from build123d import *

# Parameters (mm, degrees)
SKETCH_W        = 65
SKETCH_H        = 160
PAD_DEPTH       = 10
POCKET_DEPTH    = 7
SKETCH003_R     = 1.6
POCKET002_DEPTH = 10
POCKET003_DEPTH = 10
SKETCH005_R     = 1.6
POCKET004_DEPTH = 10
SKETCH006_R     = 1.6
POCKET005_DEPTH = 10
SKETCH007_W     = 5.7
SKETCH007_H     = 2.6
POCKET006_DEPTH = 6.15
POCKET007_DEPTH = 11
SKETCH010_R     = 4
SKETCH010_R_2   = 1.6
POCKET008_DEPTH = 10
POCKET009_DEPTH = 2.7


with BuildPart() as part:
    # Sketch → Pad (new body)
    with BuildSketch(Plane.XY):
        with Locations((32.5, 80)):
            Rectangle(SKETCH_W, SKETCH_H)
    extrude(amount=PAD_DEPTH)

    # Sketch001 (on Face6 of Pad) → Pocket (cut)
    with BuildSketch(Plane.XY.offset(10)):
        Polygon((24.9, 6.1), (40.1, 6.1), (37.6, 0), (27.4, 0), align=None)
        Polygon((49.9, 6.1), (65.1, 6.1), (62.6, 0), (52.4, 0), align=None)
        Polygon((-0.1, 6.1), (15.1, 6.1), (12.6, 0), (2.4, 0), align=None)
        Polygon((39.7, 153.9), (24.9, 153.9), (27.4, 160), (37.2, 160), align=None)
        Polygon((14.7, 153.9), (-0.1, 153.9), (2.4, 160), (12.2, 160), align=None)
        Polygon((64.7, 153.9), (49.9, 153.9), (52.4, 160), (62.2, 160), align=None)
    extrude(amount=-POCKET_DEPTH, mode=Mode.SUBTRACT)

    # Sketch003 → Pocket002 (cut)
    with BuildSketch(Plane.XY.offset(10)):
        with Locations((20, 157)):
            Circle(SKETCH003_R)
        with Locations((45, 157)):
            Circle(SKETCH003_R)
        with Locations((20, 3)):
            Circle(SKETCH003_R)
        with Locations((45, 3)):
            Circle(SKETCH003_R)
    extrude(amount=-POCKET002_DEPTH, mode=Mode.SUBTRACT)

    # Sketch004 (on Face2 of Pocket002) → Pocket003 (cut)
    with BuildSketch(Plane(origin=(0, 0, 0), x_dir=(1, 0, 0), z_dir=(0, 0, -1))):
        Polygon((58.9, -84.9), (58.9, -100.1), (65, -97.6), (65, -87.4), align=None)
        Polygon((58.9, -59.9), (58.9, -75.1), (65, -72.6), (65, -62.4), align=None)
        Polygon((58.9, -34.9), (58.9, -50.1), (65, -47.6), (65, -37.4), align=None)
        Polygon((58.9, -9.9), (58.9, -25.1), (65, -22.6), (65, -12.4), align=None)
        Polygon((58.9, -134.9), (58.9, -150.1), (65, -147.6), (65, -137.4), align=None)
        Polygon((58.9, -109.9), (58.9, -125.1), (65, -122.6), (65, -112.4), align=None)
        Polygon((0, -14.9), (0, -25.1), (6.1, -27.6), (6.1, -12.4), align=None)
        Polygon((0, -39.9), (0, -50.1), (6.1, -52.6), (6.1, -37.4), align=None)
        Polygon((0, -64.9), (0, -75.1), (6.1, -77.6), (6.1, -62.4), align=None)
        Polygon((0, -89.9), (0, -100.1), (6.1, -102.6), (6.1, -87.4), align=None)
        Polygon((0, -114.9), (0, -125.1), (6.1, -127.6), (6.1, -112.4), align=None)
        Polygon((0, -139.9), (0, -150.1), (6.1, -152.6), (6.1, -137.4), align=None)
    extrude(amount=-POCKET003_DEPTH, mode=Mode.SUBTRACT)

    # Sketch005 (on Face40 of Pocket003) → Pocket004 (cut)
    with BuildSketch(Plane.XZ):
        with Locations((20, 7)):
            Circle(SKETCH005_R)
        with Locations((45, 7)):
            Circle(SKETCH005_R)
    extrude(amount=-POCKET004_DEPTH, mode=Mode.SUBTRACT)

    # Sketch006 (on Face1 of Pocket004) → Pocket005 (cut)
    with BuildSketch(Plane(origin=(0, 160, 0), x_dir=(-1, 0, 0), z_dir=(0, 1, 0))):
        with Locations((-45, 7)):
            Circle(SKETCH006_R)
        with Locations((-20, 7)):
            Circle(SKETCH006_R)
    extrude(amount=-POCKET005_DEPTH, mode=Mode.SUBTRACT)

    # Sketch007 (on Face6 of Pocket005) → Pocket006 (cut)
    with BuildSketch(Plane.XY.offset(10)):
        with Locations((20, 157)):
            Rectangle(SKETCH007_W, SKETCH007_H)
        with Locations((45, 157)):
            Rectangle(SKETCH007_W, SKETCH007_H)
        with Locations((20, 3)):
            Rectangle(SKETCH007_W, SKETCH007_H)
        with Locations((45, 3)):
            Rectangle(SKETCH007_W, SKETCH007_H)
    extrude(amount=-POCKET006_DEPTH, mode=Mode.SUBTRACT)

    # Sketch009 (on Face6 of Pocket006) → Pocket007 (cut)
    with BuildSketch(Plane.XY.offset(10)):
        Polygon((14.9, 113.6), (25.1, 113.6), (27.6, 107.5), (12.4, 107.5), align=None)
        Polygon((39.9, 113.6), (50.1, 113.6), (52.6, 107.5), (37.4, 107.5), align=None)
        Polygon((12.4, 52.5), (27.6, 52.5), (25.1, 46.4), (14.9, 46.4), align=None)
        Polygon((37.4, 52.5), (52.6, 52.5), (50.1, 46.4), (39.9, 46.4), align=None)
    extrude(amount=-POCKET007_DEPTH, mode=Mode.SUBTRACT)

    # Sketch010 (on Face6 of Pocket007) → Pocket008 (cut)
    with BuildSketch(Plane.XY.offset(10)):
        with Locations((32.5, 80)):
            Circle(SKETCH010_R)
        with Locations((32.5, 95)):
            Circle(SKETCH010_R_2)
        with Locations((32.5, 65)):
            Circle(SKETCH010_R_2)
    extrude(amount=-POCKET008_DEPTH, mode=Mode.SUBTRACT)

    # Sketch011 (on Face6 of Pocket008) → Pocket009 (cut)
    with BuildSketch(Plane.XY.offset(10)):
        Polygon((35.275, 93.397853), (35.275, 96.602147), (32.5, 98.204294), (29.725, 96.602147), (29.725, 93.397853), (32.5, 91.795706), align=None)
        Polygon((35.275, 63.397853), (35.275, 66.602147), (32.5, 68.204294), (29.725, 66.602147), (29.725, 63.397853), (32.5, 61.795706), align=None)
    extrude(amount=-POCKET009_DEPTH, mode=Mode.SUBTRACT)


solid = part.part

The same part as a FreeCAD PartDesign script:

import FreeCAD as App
import Part
import Sketcher
from FreeCAD import Vector
Q = App.Units.Quantity


def add_polygon(sketch, points):
    """Adds a closed chain of lines whose ends are joined by coincident constraints."""
    first, n = sketch.GeometryCount, len(points)
    for a, b in zip(points, points[1:] + points[:1]):
        sketch.addGeometry(Part.LineSegment(App.Vector(*a, 0), App.Vector(*b, 0)), False)
    for i in range(n):
        sketch.addConstraint(Sketcher.Constraint("Coincident", first + i, 2, first + (i + 1) % n, 1))

doc = App.newDocument("Part")
params = doc.addObject("Spreadsheet::Sheet", "Params")
for row, (alias, value) in enumerate([
    ("sketch1_width", "65 mm"),
    ("sketch1_height", "160 mm"),
    ("pad1_length", "10 mm"),
    ("sketch2_width", "15.2 mm"),
    ("sketch2_width2", "10.2 mm"),
    ("sketch2_width3", "14.8 mm"),
    ("pocket1_length", "7 mm"),
    ("sketch3_diameter", "3.2 mm"),
    ("pocket2_length", "10 mm"),
    ("sketch4_height", "15.2 mm"),
    ("sketch4_height2", "10.2 mm"),
    ("pocket3_length", "10 mm"),
    ("sketch5_diameter", "3.2 mm"),
    ("pocket4_length", "10 mm"),
    ("sketch6_diameter", "3.2 mm"),
    ("pocket5_length", "10 mm"),
    ("sketch7_width", "5.7 mm"),
    ("sketch7_height", "2.6 mm"),
    ("pocket6_length", "6.15 mm"),
    ("sketch8_width", "10.2 mm"),
    ("sketch8_width2", "15.2 mm"),
    ("pocket7_length", "11 mm"),
    ("sketch9_diameter", "8 mm"),
    ("sketch9_diameter2", "3.2 mm"),
    ("pocket8_length", "10 mm"),
    ("pocket9_length", "2.7 mm"),
], start=1):
    params.set(f"A{row}", alias)
    params.set(f"B{row}", "=" + value)
    params.setAlias(f"B{row}", alias)

body = doc.addObject("PartDesign::Body", "Body")

# Sketch on XY plane
sketch1 = body.newObject("Sketcher::SketchObject", "Sketch")
sketch1.AttachmentSupport = (doc.getObject("XY_Plane"), [""])
sketch1.MapMode = "FlatFace"
add_polygon(sketch1, [(0, 160), (0, 0), (65, 0), (65, 160)])  # lines 0-3
sketch1.addConstraint([
    Sketcher.Constraint("Vertical", 0),
    Sketcher.Constraint("Horizontal", 1),
    Sketcher.Constraint("Vertical", 2),
    Sketcher.Constraint("Horizontal", 3),
    Sketcher.Constraint("Coincident", 0, 2, -1, 1),
    Sketcher.Constraint("DistanceX", 1, 1, 1, 2, 65.0),
    Sketcher.Constraint("DistanceY", 0, 2, 0, 1, 160.0),
])
sketch1.setExpression("Constraints[9]", "Params.sketch1_width")
sketch1.setExpression("Constraints[10]", "Params.sketch1_height")
pad1 = body.newObject("PartDesign::Pad", "Pad")
pad1.Profile = sketch1
pad1.setExpression("Length", "Params.pad1_length")

# Sketch on XY plane
sketch2 = body.newObject("Sketcher::SketchObject", "Sketch001")
sketch2.AttachmentSupport = (doc.getObject("XY_Plane"), [""])
sketch2.MapMode = "FlatFace"
sketch2.AttachmentOffset = App.Placement(Vector(0, 0, 10), App.Rotation())
add_polygon(sketch2, [(40.1, 6.1), (24.9, 6.1), (27.4, 0), (37.6, 0)])  # lines 0-3
add_polygon(sketch2, [(65.1, 6.1), (49.9, 6.1), (52.4, 0), (62.6, 0)])  # lines 4-7
add_polygon(sketch2, [(15.1, 6.1), (-0.1, 6.1), (2.4, 0), (12.6, 0)])  # lines 8-11
add_polygon(sketch2, [(24.9, 153.9), (39.7, 153.9), (37.2, 160), (27.4, 160)])  # lines 12-15
add_polygon(sketch2, [(-0.1, 153.9), (14.7, 153.9), (12.2, 160), (2.4, 160)])  # lines 16-19
add_polygon(sketch2, [(49.9, 153.9), (64.7, 153.9), (62.2, 160), (52.4, 160)])  # lines 20-23
sketch2.addConstraint([
    Sketcher.Constraint("Horizontal", 0),
    Sketcher.Constraint("Horizontal", 2),
    Sketcher.Constraint("Horizontal", 4),
    Sketcher.Constraint("Horizontal", 6),
    Sketcher.Constraint("Horizontal", 8),
    Sketcher.Constraint("Horizontal", 10),
    Sketcher.Constraint("Horizontal", 12),
    Sketcher.Constraint("Horizontal", 14),
    Sketcher.Constraint("Horizontal", 16),
    Sketcher.Constraint("Horizontal", 18),
    Sketcher.Constraint("Horizontal", 20),
    Sketcher.Constraint("Horizontal", 22),
    Sketcher.Constraint("PointOnObject", 1, 2, -1),
    Sketcher.Constraint("PointOnObject", 5, 2, -1),
    Sketcher.Constraint("PointOnObject", 9, 2, -1),
    Sketcher.Constraint("Parallel", 1, 5),
    Sketcher.Constraint("Parallel", 3, 7),
    Sketcher.Constraint("Parallel", 5, 9),
    Sketcher.Constraint("Parallel", 7, 11),
    Sketcher.Constraint("Parallel", 9, 13),
    Sketcher.Constraint("Parallel", 11, 15),
    Sketcher.Constraint("Parallel", 13, 17),
    Sketcher.Constraint("Parallel", 15, 19),
    Sketcher.Constraint("Parallel", 17, 21),
    Sketcher.Constraint("Parallel", 19, 23),
    Sketcher.Constraint("Horizontal", 3, 2, 4, 2),
    Sketcher.Constraint("Horizontal", 7, 2, 8, 2),
    Sketcher.Constraint("Horizontal", 15, 2, 16, 2),
    Sketcher.Constraint("Horizontal", 14, 2, 17, 2),
    Sketcher.Constraint("Horizontal", 19, 2, 20, 2),
    Sketcher.Constraint("Horizontal", 18, 2, 21, 2),
    Sketcher.Constraint("Vertical", 1, 2, 14, 2),
    Sketcher.Constraint("Vertical", 0, 2, 15, 2),
    Sketcher.Constraint("Vertical", 9, 2, 18, 2),
    Sketcher.Constraint("Vertical", 5, 2, 22, 2),
    Sketcher.Constraint("Equal", 0, 4),
    Sketcher.Constraint("Equal", 4, 8),
    Sketcher.Constraint("Equal", 12, 16),
    Sketcher.Constraint("Equal", 16, 20),
    Sketcher.Constraint("Equal", 1, 3),
    Sketcher.Constraint("DistanceX", 0, 2, 0, 1, 15.2),
    Sketcher.Constraint("DistanceX", 2, 1, 2, 2, 10.2),
    Sketcher.Constraint("DistanceX", 12, 1, 12, 2, 14.8),
    Sketcher.Constraint("DistanceY", -1, 1, 13, 2, 160.0),
    Sketcher.Constraint("DistanceX", 0, 2, 4, 2, 25.0),
    Sketcher.Constraint("DistanceX", 8, 2, 0, 2, 25.0),
    Sketcher.Constraint("DistanceX", -1, 1, 0, 2, 24.9),
    Sketcher.Constraint("DistanceY", -1, 1, 0, 2, 6.1),
])
sketch2.setExpression("Constraints[64]", "Params.sketch2_width")
sketch2.setExpression("Constraints[65]", "Params.sketch2_width2")
sketch2.setExpression("Constraints[66]", "Params.sketch2_width3")
pocket1 = body.newObject("PartDesign::Pocket", "Pocket")
pocket1.Profile = sketch2
pocket1.setExpression("Length", "Params.pocket1_length")

# Sketch on XY plane
sketch3 = body.newObject("Sketcher::SketchObject", "Sketch002")
sketch3.AttachmentSupport = (doc.getObject("XY_Plane"), [""])
sketch3.MapMode = "FlatFace"
sketch3.AttachmentOffset = App.Placement(Vector(0, 0, 10), App.Rotation())
sketch3.addGeometry([
    Part.Circle(Vector(20, 157, 0), Vector(0, 0, 1), 1.6),
    Part.Circle(Vector(45, 157, 0), Vector(0, 0, 1), 1.6),
    Part.Circle(Vector(20, 3, 0), Vector(0, 0, 1), 1.6),
    Part.Circle(Vector(45, 3, 0), Vector(0, 0, 1), 1.6),
], False)
sketch3.addConstraint([
    Sketcher.Constraint("Equal", 0, 1),
    Sketcher.Constraint("Equal", 1, 2),
    Sketcher.Constraint("Equal", 2, 3),
    Sketcher.Constraint("Horizontal", 0, 3, 1, 3),
    Sketcher.Constraint("Horizontal", 2, 3, 3, 3),
    Sketcher.Constraint("Vertical", 0, 3, 2, 3),
    Sketcher.Constraint("Vertical", 1, 3, 3, 3),
    Sketcher.Constraint("Diameter", 0, 3.2),
    Sketcher.Constraint("DistanceX", -1, 1, 0, 3, 20.0),
    Sketcher.Constraint("DistanceY", -1, 1, 0, 3, 157.0),
    Sketcher.Constraint("DistanceX", -1, 1, 1, 3, 45.0),
    Sketcher.Constraint("DistanceY", -1, 1, 2, 3, 3.0),
])
sketch3.setExpression("Constraints[7]", "Params.sketch3_diameter")
pocket2 = body.newObject("PartDesign::Pocket", "Pocket001")
pocket2.Profile = sketch3
pocket2.setExpression("Length", "Params.pocket2_length")

# Sketch on XY plane
sketch4 = body.newObject("Sketcher::SketchObject", "Sketch003")
sketch4.AttachmentSupport = (doc.getObject("XY_Plane"), [""])
sketch4.MapMode = "FlatFace"
add_polygon(sketch4, [(58.9, 84.9), (58.9, 100.1), (65, 97.6), (65, 87.4)])  # lines 0-3
add_polygon(sketch4, [(58.9, 59.9), (58.9, 75.1), (65, 72.6), (65, 62.4)])  # lines 4-7
add_polygon(sketch4, [(58.9, 34.9), (58.9, 50.1), (65, 47.6), (65, 37.4)])  # lines 8-11
add_polygon(sketch4, [(58.9, 9.9), (58.9, 25.1), (65, 22.6), (65, 12.4)])  # lines 12-15
add_polygon(sketch4, [(58.9, 134.9), (58.9, 150.1), (65, 147.6), (65, 137.4)])  # lines 16-19
add_polygon(sketch4, [(58.9, 109.9), (58.9, 125.1), (65, 122.6), (65, 112.4)])  # lines 20-23
add_polygon(sketch4, [(0, 14.9), (0, 25.1), (6.1, 27.6), (6.1, 12.4)])  # lines 24-27
add_polygon(sketch4, [(0, 39.9), (0, 50.1), (6.1, 52.6), (6.1, 37.4)])  # lines 28-31
add_polygon(sketch4, [(0, 64.9), (0, 75.1), (6.1, 77.6), (6.1, 62.4)])  # lines 32-35
add_polygon(sketch4, [(0, 89.9), (0, 100.1), (6.1, 102.6), (6.1, 87.4)])  # lines 36-39
add_polygon(sketch4, [(0, 114.9), (0, 125.1), (6.1, 127.6), (6.1, 112.4)])  # lines 40-43
add_polygon(sketch4, [(0, 139.9), (0, 150.1), (6.1, 152.6), (6.1, 137.4)])  # lines 44-47
sketch4.addConstraint([
    Sketcher.Constraint("Vertical", 0),
    Sketcher.Constraint("Vertical", 2),
    Sketcher.Constraint("Vertical", 4),
    Sketcher.Constraint("Vertical", 6),
    Sketcher.Constraint("Vertical", 8),
    Sketcher.Constraint("Vertical", 10),
    Sketcher.Constraint("Vertical", 12),
    Sketcher.Constraint("Vertical", 14),
    Sketcher.Constraint("Vertical", 16),
    Sketcher.Constraint("Vertical", 18),
    Sketcher.Constraint("Vertical", 20),
    Sketcher.Constraint("Vertical", 22),
    Sketcher.Constraint("Vertical", 24),
    Sketcher.Constraint("Vertical", 26),
    Sketcher.Constraint("Vertical", 28),
    Sketcher.Constraint("Vertical", 30),
    Sketcher.Constraint("Vertical", 32),
    Sketcher.Constraint("Vertical", 34),
    Sketcher.Constraint("Vertical", 36),
    Sketcher.Constraint("Vertical", 38),
    Sketcher.Constraint("Vertical", 40),
    Sketcher.Constraint("Vertical", 42),
    Sketcher.Constraint("Vertical", 44),
    Sketcher.Constraint("Vertical", 46),
    Sketcher.Constraint("PointOnObject", 24, 2, -2),
    Sketcher.Constraint("PointOnObject", 28, 2, -2),
    Sketcher.Constraint("PointOnObject", 32, 2, -2),
    Sketcher.Constraint("PointOnObject", 36, 2, -2),
    Sketcher.Constraint("PointOnObject", 40, 2, -2),
    Sketcher.Constraint("PointOnObject", 44, 2, -2),
    Sketcher.Constraint("Parallel", 1, 5),
    Sketcher.Constraint("Parallel", 3, 7),
    Sketcher.Constraint("Parallel", 5, 9),
    Sketcher.Constraint("Parallel", 7, 11),
    Sketcher.Constraint("Parallel", 9, 13),
    Sketcher.Constraint("Parallel", 11, 15),
    Sketcher.Constraint("Parallel", 13, 17),
    Sketcher.Constraint("Parallel", 15, 19),
    Sketcher.Constraint("Parallel", 17, 21),
    Sketcher.Constraint("Parallel", 19, 23),
    Sketcher.Constraint("Parallel", 23, 25),
    Sketcher.Constraint("Parallel", 21, 27),
    Sketcher.Constraint("Parallel", 25, 29),
    Sketcher.Constraint("Parallel", 27, 31),
    Sketcher.Constraint("Parallel", 29, 33),
    Sketcher.Constraint("Parallel", 31, 35),
    Sketcher.Constraint("Parallel", 33, 37),
    Sketcher.Constraint("Parallel", 35, 39),
    Sketcher.Constraint("Parallel", 37, 41),
    Sketcher.Constraint("Parallel", 39, 43),
    Sketcher.Constraint("Parallel", 41, 45),
    Sketcher.Constraint("Parallel", 43, 47),
    Sketcher.Constraint("Horizontal", 12, 2, 24, 2),
    Sketcher.Constraint("Horizontal", 14, 2, 26, 2),
    Sketcher.Constraint("Horizontal", 8, 2, 28, 2),
    Sketcher.Constraint("Horizontal", 10, 2, 30, 2),
    Sketcher.Constraint("Horizontal", 4, 2, 32, 2),
    Sketcher.Constraint("Horizontal", 6, 2, 34, 2),
    Sketcher.Constraint("Horizontal", 0, 2, 36, 2),
    Sketcher.Constraint("Horizontal", 2, 2, 38, 2),
    Sketcher.Constraint("Horizontal", 20, 2, 40, 2),
    Sketcher.Constraint("Horizontal", 22, 2, 42, 2),
    Sketcher.Constraint("Horizontal", 16, 2, 44, 2),
    Sketcher.Constraint("Horizontal", 18, 2, 46, 2),
    Sketcher.Constraint("Vertical", 3, 2, 4, 2),
    Sketcher.Constraint("Vertical", 2, 2, 5, 2),
    Sketcher.Constraint("Vertical", 7, 2, 8, 2),
    Sketcher.Constraint("Vertical", 6, 2, 9, 2),
    Sketcher.Constraint("Vertical", 11, 2, 12, 2),
    Sketcher.Constraint("Vertical", 10, 2, 13, 2),
    Sketcher.Constraint("Vertical", 15, 2, 16, 2),
    Sketcher.Constraint("Vertical", 14, 2, 17, 2),
    Sketcher.Constraint("Vertical", 19, 2, 20, 2),
    Sketcher.Constraint("Vertical", 18, 2, 21, 2),
    Sketcher.Constraint("Vertical", 26, 2, 29, 2),
    Sketcher.Constraint("Vertical", 30, 2, 33, 2),
    Sketcher.Constraint("Vertical", 34, 2, 37, 2),
    Sketcher.Constraint("Vertical", 38, 2, 41, 2),
    Sketcher.Constraint("Vertical", 42, 2, 45, 2),
    Sketcher.Constraint("Equal", 0, 4),
    Sketcher.Constraint("Equal", 4, 8),
    Sketcher.Constraint("Equal", 8, 12),
    Sketcher.Constraint("Equal", 12, 16),
    Sketcher.Constraint("Equal", 16, 20),
    Sketcher.Constraint("Equal", 22, 24),
    Sketcher.Constraint("Equal", 1, 3),
    Sketcher.Constraint("DistanceY", 0, 1, 0, 2, 15.2),
    Sketcher.Constraint("DistanceY", 2, 2, 2, 1, 10.2),
    Sketcher.Constraint("DistanceX", -1, 1, 1, 2, 65.0),
    Sketcher.Constraint("DistanceY", 4, 2, 0, 2, 25.0),
    Sketcher.Constraint("DistanceY", 8, 2, 4, 2, 25.0),
    Sketcher.Constraint("DistanceY", 12, 2, 8, 2, 25.0),
    Sketcher.Constraint("DistanceY", 0, 2, 16, 2, 50.0),
    Sketcher.Constraint("DistanceY", 0, 2, 20, 2, 25.0),
    Sketcher.Constraint("DistanceX", -1, 1, 0, 2, 58.9),
    Sketcher.Constraint("DistanceY", -1, 1, 0, 2, 100.1),
])
sketch4.setExpression("Constraints[134]", "Params.sketch4_height")
sketch4.setExpression("Constraints[135]", "Params.sketch4_height2")
pocket3 = body.newObject("PartDesign::Pocket", "Pocket002")
pocket3.Profile = sketch4
pocket3.setExpression("Length", "Params.pocket3_length")
pocket3.Reversed = True

# Sketch on XZ plane
sketch5 = body.newObject("Sketcher::SketchObject", "Sketch004")
sketch5.AttachmentSupport = (doc.getObject("XZ_Plane"), [""])
sketch5.MapMode = "FlatFace"
sketch5.addGeometry([
    Part.Circle(Vector(20, 7, 0), Vector(0, 0, 1), 1.6),
    Part.Circle(Vector(45, 7, 0), Vector(0, 0, 1), 1.6),
], False)
sketch5.addConstraint([
    Sketcher.Constraint("Equal", 0, 1),
    Sketcher.Constraint("Horizontal", 0, 3, 1, 3),
    Sketcher.Constraint("Diameter", 0, 3.2),
    Sketcher.Constraint("DistanceX", -1, 1, 0, 3, 20.0),
    Sketcher.Constraint("DistanceY", -1, 1, 0, 3, 7.0),
    Sketcher.Constraint("DistanceX", -1, 1, 1, 3, 45.0),
])
sketch5.setExpression("Constraints[2]", "Params.sketch5_diameter")
pocket4 = body.newObject("PartDesign::Pocket", "Pocket003")
pocket4.Profile = sketch5
pocket4.setExpression("Length", "Params.pocket4_length")

# Sketch on XZ plane
sketch6 = body.newObject("Sketcher::SketchObject", "Sketch005")
sketch6.AttachmentSupport = (doc.getObject("XZ_Plane"), [""])
sketch6.MapMode = "FlatFace"
sketch6.AttachmentOffset = App.Placement(Vector(0, 0, -160), App.Rotation())
sketch6.addGeometry([
    Part.Circle(Vector(45, 7, 0), Vector(0, 0, 1), 1.6),
    Part.Circle(Vector(20, 7, 0), Vector(0, 0, 1), 1.6),
], False)
sketch6.addConstraint([
    Sketcher.Constraint("Equal", 0, 1),
    Sketcher.Constraint("Horizontal", 0, 3, 1, 3),
    Sketcher.Constraint("Diameter", 0, 3.2),
    Sketcher.Constraint("DistanceX", -1, 1, 0, 3, 45.0),
    Sketcher.Constraint("DistanceY", -1, 1, 0, 3, 7.0),
    Sketcher.Constraint("DistanceX", -1, 1, 1, 3, 20.0),
])
sketch6.setExpression("Constraints[2]", "Params.sketch6_diameter")
pocket5 = body.newObject("PartDesign::Pocket", "Pocket004")
pocket5.Profile = sketch6
pocket5.setExpression("Length", "Params.pocket5_length")
pocket5.Reversed = True

# Sketch on XY plane
sketch7 = body.newObject("Sketcher::SketchObject", "Sketch006")
sketch7.AttachmentSupport = (doc.getObject("XY_Plane"), [""])
sketch7.MapMode = "FlatFace"
sketch7.AttachmentOffset = App.Placement(Vector(0, 0, 10), App.Rotation())
add_polygon(sketch7, [(17.15, 158.3), (17.15, 155.7), (22.85, 155.7), (22.85, 158.3)])  # lines 0-3
add_polygon(sketch7, [(42.15, 158.3), (42.15, 155.7), (47.85, 155.7), (47.85, 158.3)])  # lines 4-7
add_polygon(sketch7, [(17.15, 4.3), (17.15, 1.7), (22.85, 1.7), (22.85, 4.3)])  # lines 8-11
add_polygon(sketch7, [(42.15, 4.3), (42.15, 1.7), (47.85, 1.7), (47.85, 4.3)])  # lines 12-15
sketch7.addConstraint([
    Sketcher.Constraint("Vertical", 0),
    Sketcher.Constraint("Horizontal", 1),
    Sketcher.Constraint("Vertical", 2),
    Sketcher.Constraint("Horizontal", 3),
    Sketcher.Constraint("Vertical", 4),
    Sketcher.Constraint("Horizontal", 5),
    Sketcher.Constraint("Vertical", 6),
    Sketcher.Constraint("Horizontal", 7),
    Sketcher.Constraint("Vertical", 8),
    Sketcher.Constraint("Horizontal", 9),
    Sketcher.Constraint("Vertical", 10),
    Sketcher.Constraint("Horizontal", 11),
    Sketcher.Constraint("Vertical", 12),
    Sketcher.Constraint("Horizontal", 13),
    Sketcher.Constraint("Vertical", 14),
    Sketcher.Constraint("Horizontal", 15),
    Sketcher.Constraint("Horizontal", 1, 2, 4, 2),
    Sketcher.Constraint("Horizontal", 3, 2, 6, 2),
    Sketcher.Constraint("Horizontal", 9, 2, 12, 2),
    Sketcher.Constraint("Horizontal", 11, 2, 14, 2),
    Sketcher.Constraint("Vertical", 3, 2, 8, 2),
    Sketcher.Constraint("Vertical", 2, 2, 9, 2),
    Sketcher.Constraint("Vertical", 7, 2, 12, 2),
    Sketcher.Constraint("Vertical", 6, 2, 13, 2),
    Sketcher.Constraint("Equal", 3, 5),
    Sketcher.Constraint("Equal", 6, 8),
    Sketcher.Constraint("DistanceX", 1, 1, 1, 2, 5.7),
    Sketcher.Constraint("DistanceY", 0, 2, 0, 1, 2.6),
    Sketcher.Constraint("DistanceX", 0, 2, 4, 2, 25.0),
    Sketcher.Constraint("DistanceY", 8, 2, 0, 2, 154.0),
    Sketcher.Constraint("DistanceY", -1, 1, 0, 2, 155.7),
    Sketcher.Constraint("DistanceX", -1, 1, 0, 2, 17.15),
])
sketch7.setExpression("Constraints[42]", "Params.sketch7_width")
sketch7.setExpression("Constraints[43]", "Params.sketch7_height")
pocket6 = body.newObject("PartDesign::Pocket", "Pocket005")
pocket6.Profile = sketch7
pocket6.setExpression("Length", "Params.pocket6_length")

# Sketch on XY plane
sketch8 = body.newObject("Sketcher::SketchObject", "Sketch007")
sketch8.AttachmentSupport = (doc.getObject("XY_Plane"), [""])
sketch8.MapMode = "FlatFace"
sketch8.AttachmentOffset = App.Placement(Vector(0, 0, 10), App.Rotation())
add_polygon(sketch8, [(25.1, 113.6), (14.9, 113.6), (12.4, 107.5), (27.6, 107.5)])  # lines 0-3
add_polygon(sketch8, [(50.1, 113.6), (39.9, 113.6), (37.4, 107.5), (52.6, 107.5)])  # lines 4-7
add_polygon(sketch8, [(27.6, 52.5), (12.4, 52.5), (14.9, 46.4), (25.1, 46.4)])  # lines 8-11
add_polygon(sketch8, [(52.6, 52.5), (37.4, 52.5), (39.9, 46.4), (50.1, 46.4)])  # lines 12-15
sketch8.addConstraint([
    Sketcher.Constraint("Horizontal", 0),
    Sketcher.Constraint("Horizontal", 2),
    Sketcher.Constraint("Horizontal", 4),
    Sketcher.Constraint("Horizontal", 6),
    Sketcher.Constraint("Horizontal", 8),
    Sketcher.Constraint("Horizontal", 10),
    Sketcher.Constraint("Horizontal", 12),
    Sketcher.Constraint("Horizontal", 14),
    Sketcher.Constraint("Parallel", 1, 5),
    Sketcher.Constraint("Parallel", 3, 7),
    Sketcher.Constraint("Parallel", 7, 9),
    Sketcher.Constraint("Parallel", 5, 11),
    Sketcher.Constraint("Parallel", 9, 13),
    Sketcher.Constraint("Parallel", 11, 15),
    Sketcher.Constraint("Horizontal", 3, 2, 4, 2),
    Sketcher.Constraint("Horizontal", 2, 2, 5, 2),
    Sketcher.Constraint("Horizontal", 11, 2, 12, 2),
    Sketcher.Constraint("Horizontal", 10, 2, 13, 2),
    Sketcher.Constraint("Vertical", 1, 2, 8, 2),
    Sketcher.Constraint("Vertical", 0, 2, 9, 2),
    Sketcher.Constraint("Vertical", 3, 2, 10, 2),
    Sketcher.Constraint("Vertical", 2, 2, 11, 2),
    Sketcher.Constraint("Vertical", 5, 2, 12, 2),
    Sketcher.Constraint("Vertical", 7, 2, 14, 2),
    Sketcher.Constraint("Equal", 0, 4),
    Sketcher.Constraint("DistanceX", 0, 2, 0, 1, 10.2),
    Sketcher.Constraint("DistanceX", 2, 1, 2, 2, 15.2),
    Sketcher.Constraint("DistanceX", 0, 2, 4, 2, 25.0),
    Sketcher.Constraint("DistanceY", 8, 2, 1, 2, 55.0),
    Sketcher.Constraint("DistanceX", -1, 1, 0, 2, 14.9),
    Sketcher.Constraint("DistanceY", -1, 1, 0, 2, 113.6),
    Sketcher.Constraint("DistanceY", -1, 1, 1, 2, 107.5),
])
sketch8.setExpression("Constraints[41]", "Params.sketch8_width")
sketch8.setExpression("Constraints[42]", "Params.sketch8_width2")
pocket7 = body.newObject("PartDesign::Pocket", "Pocket006")
pocket7.Profile = sketch8
pocket7.setExpression("Length", "Params.pocket7_length")

# Sketch on XY plane
sketch9 = body.newObject("Sketcher::SketchObject", "Sketch008")
sketch9.AttachmentSupport = (doc.getObject("XY_Plane"), [""])
sketch9.MapMode = "FlatFace"
sketch9.AttachmentOffset = App.Placement(Vector(0, 0, 10), App.Rotation())
sketch9.addGeometry([
    Part.Circle(Vector(32.5, 80, 0), Vector(0, 0, 1), 4),
    Part.Circle(Vector(32.5, 95, 0), Vector(0, 0, 1), 1.6),
    Part.Circle(Vector(32.5, 65, 0), Vector(0, 0, 1), 1.6),
], False)
sketch9.addConstraint([
    Sketcher.Constraint("Equal", 1, 2),
    Sketcher.Constraint("Vertical", 0, 3, 1, 3),
    Sketcher.Constraint("Vertical", 1, 3, 2, 3),
    Sketcher.Constraint("Diameter", 0, 8.0),
    Sketcher.Constraint("Diameter", 1, 3.2),
    Sketcher.Constraint("DistanceY", -1, 1, 0, 3, 80.0),
    Sketcher.Constraint("DistanceY", -1, 1, 1, 3, 95.0),
    Sketcher.Constraint("DistanceY", -1, 1, 2, 3, 65.0),
    Sketcher.Constraint("DistanceX", -1, 1, 0, 3, 32.5),
])
sketch9.setExpression("Constraints[3]", "Params.sketch9_diameter")
sketch9.setExpression("Constraints[4]", "Params.sketch9_diameter2")
pocket8 = body.newObject("PartDesign::Pocket", "Pocket007")
pocket8.Profile = sketch9
pocket8.setExpression("Length", "Params.pocket8_length")

# Sketch on XY plane
sketch10 = body.newObject("Sketcher::SketchObject", "Sketch009")
sketch10.AttachmentSupport = (doc.getObject("XY_Plane"), [""])
sketch10.MapMode = "FlatFace"
sketch10.AttachmentOffset = App.Placement(Vector(0, 0, 10), App.Rotation())
add_polygon(sketch10, [(35.275, 93.397853), (35.275, 96.602147), (32.5, 98.204294), (29.725, 96.602147), (29.725, 93.397853), (32.5, 91.795706)])  # lines 0-5
add_polygon(sketch10, [(35.275, 63.397853), (35.275, 66.602147), (32.5, 68.204294), (29.725, 66.602147), (29.725, 63.397853), (32.5, 61.795706)])  # lines 6-11
sketch10.addConstraint([
    Sketcher.Constraint("Vertical", 0),
    Sketcher.Constraint("Vertical", 3),
    Sketcher.Constraint("Vertical", 6),
    Sketcher.Constraint("Vertical", 9),
    Sketcher.Constraint("Parallel", 1, 4),
    Sketcher.Constraint("Parallel", 2, 5),
    Sketcher.Constraint("Parallel", 4, 7),
    Sketcher.Constraint("Parallel", 5, 8),
    Sketcher.Constraint("Parallel", 7, 10),
    Sketcher.Constraint("Parallel", 8, 11),
    Sketcher.Constraint("Horizontal", 0, 2, 2, 2),
    Sketcher.Constraint("Horizontal", 3, 2, 5, 2),
    Sketcher.Constraint("Horizontal", 6, 2, 8, 2),
    Sketcher.Constraint("Horizontal", 9, 2, 11, 2),
    Sketcher.Constraint("Vertical", 1, 2, 4, 2),
    Sketcher.Constraint("Vertical", 5, 2, 6, 2),
    Sketcher.Constraint("Vertical", 4, 2, 7, 2),
    Sketcher.Constraint("Equal", 3, 6),
    Sketcher.Constraint("Angle", 1, Q("150 deg")),
    Sketcher.Constraint("DistanceY", 6, 2, 0, 2, 30.0),
    Sketcher.Constraint("DistanceX", -1, 1, 1, 2, 32.5),
    Sketcher.Constraint("DistanceX", 2, 2, 0, 2, 5.55),
    Sketcher.Constraint("DistanceY", 0, 1, 0, 2, 3.204294),
    Sketcher.Constraint("DistanceY", -1, 1, 0, 2, 96.602147),
])
pocket9 = body.newObject("PartDesign::Pocket", "Pocket008")
pocket9.Profile = sketch10
pocket9.setExpression("Length", "Params.pocket9_length")

doc.recompute()
